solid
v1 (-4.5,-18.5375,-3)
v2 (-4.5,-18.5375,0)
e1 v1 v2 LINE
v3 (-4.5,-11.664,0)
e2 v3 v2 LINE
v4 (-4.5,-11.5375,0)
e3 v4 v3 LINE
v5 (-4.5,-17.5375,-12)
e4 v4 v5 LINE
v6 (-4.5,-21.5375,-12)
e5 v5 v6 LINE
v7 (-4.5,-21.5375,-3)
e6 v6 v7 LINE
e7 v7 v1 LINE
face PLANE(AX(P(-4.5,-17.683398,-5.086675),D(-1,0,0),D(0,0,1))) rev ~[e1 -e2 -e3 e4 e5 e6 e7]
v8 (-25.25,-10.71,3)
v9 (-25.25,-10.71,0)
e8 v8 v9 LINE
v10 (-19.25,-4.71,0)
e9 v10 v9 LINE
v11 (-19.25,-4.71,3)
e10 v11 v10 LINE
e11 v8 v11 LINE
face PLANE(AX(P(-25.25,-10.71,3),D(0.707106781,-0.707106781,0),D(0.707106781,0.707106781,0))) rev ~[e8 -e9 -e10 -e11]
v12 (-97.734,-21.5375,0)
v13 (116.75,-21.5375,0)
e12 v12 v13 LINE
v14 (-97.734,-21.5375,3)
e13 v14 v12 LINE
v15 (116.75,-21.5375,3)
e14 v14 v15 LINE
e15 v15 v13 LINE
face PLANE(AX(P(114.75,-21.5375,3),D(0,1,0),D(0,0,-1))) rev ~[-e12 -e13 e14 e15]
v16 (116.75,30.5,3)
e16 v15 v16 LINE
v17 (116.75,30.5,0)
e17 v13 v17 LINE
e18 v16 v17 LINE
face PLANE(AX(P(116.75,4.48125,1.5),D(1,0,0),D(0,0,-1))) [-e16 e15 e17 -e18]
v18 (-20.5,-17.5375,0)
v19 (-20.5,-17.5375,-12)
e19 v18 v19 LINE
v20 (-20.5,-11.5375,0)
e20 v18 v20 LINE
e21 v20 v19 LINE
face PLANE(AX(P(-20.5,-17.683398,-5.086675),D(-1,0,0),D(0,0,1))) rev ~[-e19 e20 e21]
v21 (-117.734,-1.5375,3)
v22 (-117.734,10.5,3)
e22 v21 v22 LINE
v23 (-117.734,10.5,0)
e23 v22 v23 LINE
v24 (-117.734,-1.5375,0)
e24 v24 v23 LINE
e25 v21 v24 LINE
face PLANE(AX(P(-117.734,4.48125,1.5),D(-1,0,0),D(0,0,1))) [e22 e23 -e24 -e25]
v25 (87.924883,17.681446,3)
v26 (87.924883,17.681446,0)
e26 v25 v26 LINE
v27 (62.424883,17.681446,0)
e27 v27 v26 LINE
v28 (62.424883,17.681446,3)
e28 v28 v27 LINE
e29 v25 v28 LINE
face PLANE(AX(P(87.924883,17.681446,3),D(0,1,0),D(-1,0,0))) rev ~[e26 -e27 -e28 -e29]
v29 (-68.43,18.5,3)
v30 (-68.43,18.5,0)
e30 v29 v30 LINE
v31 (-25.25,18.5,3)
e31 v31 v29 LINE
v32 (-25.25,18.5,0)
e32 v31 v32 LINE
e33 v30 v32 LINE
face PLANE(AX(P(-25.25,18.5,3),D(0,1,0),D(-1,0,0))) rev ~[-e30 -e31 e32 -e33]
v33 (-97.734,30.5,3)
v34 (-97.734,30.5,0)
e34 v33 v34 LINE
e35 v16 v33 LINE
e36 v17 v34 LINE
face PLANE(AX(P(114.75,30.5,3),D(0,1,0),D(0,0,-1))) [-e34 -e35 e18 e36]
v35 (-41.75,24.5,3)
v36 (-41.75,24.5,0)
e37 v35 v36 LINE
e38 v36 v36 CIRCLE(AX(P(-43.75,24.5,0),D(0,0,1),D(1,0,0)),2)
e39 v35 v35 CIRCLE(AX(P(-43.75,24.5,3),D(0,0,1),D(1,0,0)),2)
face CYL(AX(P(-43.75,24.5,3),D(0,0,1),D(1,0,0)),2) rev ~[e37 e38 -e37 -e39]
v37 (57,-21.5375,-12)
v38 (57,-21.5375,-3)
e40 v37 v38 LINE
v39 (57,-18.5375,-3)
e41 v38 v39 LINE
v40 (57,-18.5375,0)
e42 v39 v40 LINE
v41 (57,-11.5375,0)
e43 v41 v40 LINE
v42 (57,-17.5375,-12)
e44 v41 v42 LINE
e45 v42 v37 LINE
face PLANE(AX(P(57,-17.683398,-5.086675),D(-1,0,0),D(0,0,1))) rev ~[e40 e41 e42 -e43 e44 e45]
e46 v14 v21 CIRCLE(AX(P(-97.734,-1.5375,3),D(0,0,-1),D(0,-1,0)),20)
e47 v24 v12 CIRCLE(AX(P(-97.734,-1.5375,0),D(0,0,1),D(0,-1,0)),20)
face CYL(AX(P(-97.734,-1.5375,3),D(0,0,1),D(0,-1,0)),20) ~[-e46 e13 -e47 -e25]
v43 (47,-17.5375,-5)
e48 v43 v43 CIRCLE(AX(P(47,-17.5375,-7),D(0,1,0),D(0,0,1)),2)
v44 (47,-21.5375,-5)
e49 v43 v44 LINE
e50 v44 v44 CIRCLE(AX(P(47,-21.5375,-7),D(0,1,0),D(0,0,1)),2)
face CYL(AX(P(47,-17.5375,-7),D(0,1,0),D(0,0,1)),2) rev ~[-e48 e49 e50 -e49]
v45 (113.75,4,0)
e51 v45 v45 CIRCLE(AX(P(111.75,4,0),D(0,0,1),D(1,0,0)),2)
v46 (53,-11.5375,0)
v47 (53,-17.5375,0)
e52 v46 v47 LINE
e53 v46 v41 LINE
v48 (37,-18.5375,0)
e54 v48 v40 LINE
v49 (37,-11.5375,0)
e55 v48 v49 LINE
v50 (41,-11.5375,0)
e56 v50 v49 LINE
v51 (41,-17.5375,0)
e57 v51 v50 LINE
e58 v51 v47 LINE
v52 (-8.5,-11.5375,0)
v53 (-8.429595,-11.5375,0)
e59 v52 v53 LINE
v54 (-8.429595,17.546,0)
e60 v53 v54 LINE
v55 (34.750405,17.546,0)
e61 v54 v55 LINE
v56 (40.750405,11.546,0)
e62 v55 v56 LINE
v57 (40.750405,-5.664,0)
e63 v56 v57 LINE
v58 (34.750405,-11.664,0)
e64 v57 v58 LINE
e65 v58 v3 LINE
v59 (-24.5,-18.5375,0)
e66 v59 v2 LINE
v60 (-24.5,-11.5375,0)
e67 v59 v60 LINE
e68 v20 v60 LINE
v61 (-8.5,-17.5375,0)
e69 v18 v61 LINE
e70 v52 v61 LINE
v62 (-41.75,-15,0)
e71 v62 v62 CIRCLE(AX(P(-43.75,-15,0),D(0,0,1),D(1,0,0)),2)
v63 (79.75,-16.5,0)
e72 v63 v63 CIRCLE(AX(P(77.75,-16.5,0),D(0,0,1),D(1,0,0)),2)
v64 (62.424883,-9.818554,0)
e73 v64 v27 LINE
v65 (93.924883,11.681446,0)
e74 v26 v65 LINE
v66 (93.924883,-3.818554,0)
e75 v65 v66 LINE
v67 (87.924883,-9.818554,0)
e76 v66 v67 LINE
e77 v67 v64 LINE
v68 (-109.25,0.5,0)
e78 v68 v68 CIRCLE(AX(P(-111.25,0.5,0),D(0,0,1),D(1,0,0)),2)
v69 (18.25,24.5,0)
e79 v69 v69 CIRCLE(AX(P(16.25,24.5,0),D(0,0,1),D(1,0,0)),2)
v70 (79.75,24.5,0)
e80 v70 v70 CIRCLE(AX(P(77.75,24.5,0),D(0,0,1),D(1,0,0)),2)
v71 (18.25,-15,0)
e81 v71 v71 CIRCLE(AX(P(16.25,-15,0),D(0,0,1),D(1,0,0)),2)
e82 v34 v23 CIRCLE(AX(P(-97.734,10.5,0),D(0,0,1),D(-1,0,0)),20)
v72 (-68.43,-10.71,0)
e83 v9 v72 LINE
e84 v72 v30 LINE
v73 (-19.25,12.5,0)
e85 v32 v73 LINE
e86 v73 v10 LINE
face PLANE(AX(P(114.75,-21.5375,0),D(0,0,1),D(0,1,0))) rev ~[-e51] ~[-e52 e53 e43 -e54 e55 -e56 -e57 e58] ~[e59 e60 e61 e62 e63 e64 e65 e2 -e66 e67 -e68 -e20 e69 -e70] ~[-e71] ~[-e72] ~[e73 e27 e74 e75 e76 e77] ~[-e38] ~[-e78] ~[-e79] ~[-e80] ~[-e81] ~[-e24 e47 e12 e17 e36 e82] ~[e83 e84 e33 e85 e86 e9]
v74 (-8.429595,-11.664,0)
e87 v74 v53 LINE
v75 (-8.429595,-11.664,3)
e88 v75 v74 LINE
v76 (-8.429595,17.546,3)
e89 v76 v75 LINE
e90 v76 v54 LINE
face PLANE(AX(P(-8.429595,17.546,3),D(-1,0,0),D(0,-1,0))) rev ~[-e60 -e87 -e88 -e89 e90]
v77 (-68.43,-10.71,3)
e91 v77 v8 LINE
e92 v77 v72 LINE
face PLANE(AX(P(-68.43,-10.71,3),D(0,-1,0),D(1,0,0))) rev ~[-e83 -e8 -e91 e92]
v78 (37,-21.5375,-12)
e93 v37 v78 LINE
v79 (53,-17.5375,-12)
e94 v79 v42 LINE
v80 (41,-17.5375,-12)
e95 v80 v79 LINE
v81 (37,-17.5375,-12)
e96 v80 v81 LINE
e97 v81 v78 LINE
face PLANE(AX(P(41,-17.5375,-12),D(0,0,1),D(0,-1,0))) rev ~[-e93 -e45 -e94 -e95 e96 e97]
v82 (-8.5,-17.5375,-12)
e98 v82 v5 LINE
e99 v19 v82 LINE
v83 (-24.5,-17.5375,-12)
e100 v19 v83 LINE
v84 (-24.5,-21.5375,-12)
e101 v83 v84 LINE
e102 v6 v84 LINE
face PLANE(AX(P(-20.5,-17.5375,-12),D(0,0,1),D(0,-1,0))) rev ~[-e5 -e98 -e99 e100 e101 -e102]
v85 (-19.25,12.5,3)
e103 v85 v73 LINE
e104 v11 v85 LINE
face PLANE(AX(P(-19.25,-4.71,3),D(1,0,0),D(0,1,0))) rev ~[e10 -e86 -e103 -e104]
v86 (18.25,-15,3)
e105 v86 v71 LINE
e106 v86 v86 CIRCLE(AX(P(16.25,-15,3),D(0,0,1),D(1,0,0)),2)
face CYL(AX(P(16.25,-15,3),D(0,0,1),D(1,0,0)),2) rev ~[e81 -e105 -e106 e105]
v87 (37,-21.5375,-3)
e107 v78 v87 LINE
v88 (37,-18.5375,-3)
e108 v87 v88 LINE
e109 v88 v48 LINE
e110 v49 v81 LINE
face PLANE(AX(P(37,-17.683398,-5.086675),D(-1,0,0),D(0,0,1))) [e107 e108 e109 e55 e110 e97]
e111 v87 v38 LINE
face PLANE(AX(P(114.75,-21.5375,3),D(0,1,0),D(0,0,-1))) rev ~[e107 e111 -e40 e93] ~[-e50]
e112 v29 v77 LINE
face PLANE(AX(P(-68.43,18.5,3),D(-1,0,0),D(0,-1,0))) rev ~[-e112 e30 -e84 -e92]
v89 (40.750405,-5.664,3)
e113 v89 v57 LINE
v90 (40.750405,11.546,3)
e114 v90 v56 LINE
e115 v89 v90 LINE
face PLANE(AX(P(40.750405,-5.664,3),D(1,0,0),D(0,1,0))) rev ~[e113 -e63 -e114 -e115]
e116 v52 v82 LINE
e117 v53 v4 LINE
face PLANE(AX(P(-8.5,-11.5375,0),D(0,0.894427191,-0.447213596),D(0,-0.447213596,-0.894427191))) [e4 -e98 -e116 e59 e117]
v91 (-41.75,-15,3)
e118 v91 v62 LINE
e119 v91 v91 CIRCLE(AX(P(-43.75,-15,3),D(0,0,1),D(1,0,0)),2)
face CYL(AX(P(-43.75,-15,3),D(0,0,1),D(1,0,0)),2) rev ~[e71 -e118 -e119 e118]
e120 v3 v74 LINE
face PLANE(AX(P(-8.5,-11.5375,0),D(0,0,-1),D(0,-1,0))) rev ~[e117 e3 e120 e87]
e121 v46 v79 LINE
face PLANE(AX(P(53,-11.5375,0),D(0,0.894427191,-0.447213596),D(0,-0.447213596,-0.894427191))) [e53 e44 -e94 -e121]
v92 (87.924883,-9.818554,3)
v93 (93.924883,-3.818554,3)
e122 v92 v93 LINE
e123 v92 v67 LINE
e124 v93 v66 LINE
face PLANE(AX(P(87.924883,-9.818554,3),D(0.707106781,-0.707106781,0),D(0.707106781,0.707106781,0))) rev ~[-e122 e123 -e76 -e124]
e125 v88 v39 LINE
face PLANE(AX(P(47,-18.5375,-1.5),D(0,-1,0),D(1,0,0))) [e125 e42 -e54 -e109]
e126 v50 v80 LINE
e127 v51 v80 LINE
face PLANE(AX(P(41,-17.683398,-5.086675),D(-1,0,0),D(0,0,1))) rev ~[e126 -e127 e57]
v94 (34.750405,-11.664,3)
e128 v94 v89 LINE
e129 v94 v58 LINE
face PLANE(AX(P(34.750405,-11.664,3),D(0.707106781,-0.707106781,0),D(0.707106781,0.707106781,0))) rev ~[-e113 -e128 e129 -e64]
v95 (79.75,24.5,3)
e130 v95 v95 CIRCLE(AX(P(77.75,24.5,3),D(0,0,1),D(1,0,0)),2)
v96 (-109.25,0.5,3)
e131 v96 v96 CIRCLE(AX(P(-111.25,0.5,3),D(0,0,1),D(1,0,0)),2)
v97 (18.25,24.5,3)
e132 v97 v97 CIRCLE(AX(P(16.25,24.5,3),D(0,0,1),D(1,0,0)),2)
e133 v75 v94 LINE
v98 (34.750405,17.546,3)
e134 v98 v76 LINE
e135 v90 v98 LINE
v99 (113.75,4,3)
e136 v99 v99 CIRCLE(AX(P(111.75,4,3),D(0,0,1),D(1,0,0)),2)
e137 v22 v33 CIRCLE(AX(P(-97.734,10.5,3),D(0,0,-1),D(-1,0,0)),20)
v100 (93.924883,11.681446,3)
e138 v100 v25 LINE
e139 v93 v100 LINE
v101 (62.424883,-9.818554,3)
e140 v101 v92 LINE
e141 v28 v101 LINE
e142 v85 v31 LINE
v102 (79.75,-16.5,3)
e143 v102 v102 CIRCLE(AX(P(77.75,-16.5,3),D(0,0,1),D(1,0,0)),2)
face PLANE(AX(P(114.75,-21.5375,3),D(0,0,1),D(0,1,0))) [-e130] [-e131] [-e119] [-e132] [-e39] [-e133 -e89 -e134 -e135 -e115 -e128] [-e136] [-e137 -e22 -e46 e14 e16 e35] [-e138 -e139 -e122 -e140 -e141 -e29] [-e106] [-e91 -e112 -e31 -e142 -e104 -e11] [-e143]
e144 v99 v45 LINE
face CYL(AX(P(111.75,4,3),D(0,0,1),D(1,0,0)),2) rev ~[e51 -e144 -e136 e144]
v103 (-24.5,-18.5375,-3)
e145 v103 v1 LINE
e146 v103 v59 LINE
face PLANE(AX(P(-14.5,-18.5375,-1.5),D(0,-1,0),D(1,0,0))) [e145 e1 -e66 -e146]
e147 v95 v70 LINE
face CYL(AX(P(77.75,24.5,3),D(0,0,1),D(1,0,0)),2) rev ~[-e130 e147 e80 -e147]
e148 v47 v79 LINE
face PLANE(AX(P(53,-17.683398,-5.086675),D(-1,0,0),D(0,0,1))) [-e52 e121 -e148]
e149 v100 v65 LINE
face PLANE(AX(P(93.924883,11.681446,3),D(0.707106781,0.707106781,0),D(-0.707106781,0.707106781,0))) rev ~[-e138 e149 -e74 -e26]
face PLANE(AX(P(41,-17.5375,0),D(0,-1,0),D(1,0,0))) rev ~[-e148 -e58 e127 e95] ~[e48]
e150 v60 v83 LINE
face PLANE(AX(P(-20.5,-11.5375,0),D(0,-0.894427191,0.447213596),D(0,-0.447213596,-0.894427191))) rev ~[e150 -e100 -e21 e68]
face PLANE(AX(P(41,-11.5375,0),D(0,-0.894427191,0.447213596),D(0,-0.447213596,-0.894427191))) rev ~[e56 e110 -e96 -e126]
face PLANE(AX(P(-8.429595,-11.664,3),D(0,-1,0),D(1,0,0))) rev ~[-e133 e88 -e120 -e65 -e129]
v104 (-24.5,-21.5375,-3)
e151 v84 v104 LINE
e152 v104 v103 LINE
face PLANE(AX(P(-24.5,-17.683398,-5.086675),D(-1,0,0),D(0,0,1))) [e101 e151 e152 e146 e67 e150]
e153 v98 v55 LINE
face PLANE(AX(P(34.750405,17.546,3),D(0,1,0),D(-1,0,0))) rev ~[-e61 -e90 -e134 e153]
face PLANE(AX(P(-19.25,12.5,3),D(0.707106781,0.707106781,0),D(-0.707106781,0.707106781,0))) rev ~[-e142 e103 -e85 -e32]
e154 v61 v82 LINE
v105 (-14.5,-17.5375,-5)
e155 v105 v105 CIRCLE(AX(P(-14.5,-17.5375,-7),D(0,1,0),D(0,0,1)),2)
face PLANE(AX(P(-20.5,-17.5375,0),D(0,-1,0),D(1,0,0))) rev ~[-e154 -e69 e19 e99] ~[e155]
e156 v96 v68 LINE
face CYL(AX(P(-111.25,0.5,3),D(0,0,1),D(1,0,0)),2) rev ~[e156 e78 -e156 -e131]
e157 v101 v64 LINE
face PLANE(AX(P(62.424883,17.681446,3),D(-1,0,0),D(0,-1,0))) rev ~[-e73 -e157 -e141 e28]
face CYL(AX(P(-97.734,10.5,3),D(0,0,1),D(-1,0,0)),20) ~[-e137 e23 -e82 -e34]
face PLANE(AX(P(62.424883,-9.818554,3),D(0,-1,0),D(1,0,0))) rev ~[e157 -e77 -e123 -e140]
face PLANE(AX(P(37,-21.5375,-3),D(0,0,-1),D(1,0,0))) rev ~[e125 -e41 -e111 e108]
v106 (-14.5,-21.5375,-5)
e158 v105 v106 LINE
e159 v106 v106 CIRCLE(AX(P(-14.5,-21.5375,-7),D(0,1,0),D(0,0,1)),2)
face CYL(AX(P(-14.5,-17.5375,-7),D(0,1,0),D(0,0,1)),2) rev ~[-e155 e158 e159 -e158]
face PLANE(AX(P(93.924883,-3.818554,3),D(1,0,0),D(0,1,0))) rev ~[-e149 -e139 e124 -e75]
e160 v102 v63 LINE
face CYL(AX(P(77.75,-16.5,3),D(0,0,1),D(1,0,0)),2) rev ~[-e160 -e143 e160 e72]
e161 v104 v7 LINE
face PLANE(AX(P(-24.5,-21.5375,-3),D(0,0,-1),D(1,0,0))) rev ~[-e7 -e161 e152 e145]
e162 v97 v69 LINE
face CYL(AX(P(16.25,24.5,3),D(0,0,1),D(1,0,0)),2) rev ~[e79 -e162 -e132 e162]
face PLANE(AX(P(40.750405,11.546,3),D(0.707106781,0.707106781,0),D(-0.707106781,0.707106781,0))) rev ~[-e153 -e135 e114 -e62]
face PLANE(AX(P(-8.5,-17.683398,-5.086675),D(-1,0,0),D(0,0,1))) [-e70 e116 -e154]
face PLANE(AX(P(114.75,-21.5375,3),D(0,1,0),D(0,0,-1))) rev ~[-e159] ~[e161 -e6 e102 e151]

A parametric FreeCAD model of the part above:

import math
import FreeCAD as App
import Part
import Sketcher

V = App.Vector
Q = App.Units.Quantity


def add_polygon(sketch, points):
    """Adds a closed chain of lines whose ends are joined by coincident constraints."""
    first, n = sketch.GeometryCount, len(points)
    for a, b in zip(points, points[1:] + points[:1]):
        sketch.addGeometry(Part.LineSegment(App.Vector(*a, 0), App.Vector(*b, 0)), False)
    for i in range(n):
        sketch.addConstraint(Sketcher.Constraint("Coincident", first + i, 2, first + (i + 1) % n, 1))

doc = App.newDocument("Part")
body = doc.addObject("PartDesign::Body", "Body")

# Sketch on XY plane
sketch1 = doc.addObject("Sketcher::SketchObject", "Sketch")
body.addObject(sketch1)
sketch1.AttachmentSupport = (doc.XY_Plane, [""])
sketch1.MapMode = "FlatFace"
add_polygon(sketch1, [(-115, 24), (-115, -24), (115, -24), (115, 24)])  # lines 0-3
sketch1.addConstraint(Sketcher.Constraint("Vertical", 0))
sketch1.addConstraint(Sketcher.Constraint("Horizontal", 1))
sketch1.addConstraint(Sketcher.Constraint("Vertical", 2))
sketch1.addConstraint(Sketcher.Constraint("Horizontal", 3))
sketch1.addConstraint(Sketcher.Constraint("Symmetric", 0, 2, 2, 2, -1, 1))
sketch1.addConstraint(Sketcher.Constraint("DistanceY", 0, 2, 0, 1, Q("49 mm")))
sketch1.addConstraint(Sketcher.Constraint("DistanceX", 1, 1, 1, 2, Q("229.5 mm")))
pad1 = doc.addObject("PartDesign::Pad", "Pad")
body.addObject(pad1)
pad1.Profile = sketch1
pad1.Length = 3

# Sketch on XZ plane
sketch2 = doc.addObject("Sketcher::SketchObject", "Sketch001")
body.addObject(sketch2)
sketch2.AttachmentSupport = (doc.XZ_Plane, [""])
sketch2.MapMode = "FlatFace"
sketch2.AttachmentOffset = App.Placement(V(0, 0, -24.5), App.Rotation())
add_polygon(sketch2, [(-114.8, 0), (-114.8, 3), (114.8, 3), (114.8, 0)])  # lines 0-3
sketch2.addConstraint(Sketcher.Constraint("Vertical", 0))
sketch2.addConstraint(Sketcher.Constraint("Horizontal", 1))
sketch2.addConstraint(Sketcher.Constraint("Vertical", 2))
sketch2.addConstraint(Sketcher.Constraint("Horizontal", 3))
sketch2.addConstraint(Sketcher.Constraint("Symmetric", 2, 2, 3, 2, -1, 1))
sketch2.addConstraint(Sketcher.Constraint("DistanceY", 0, 1, 0, 2, Q("3 mm")))
sketch2.addConstraint(Sketcher.Constraint("DistanceX", 1, 1, 1, 2, Q("229.5 mm")))
pad2 = doc.addObject("PartDesign::Pad", "Pad001")
body.addObject(pad2)
pad2.Profile = sketch2
pad2.Length = 6
pad2.Reversed = True

# Sketch on XY plane
sketch3 = doc.addObject("Sketcher::SketchObject", "Sketch002")
body.addObject(sketch3)
sketch3.AttachmentSupport = (doc.XY_Plane, [""])
sketch3.MapMode = "FlatFace"
sketch3.AttachmentOffset = App.Placement(V(0, 0, 3), App.Rotation())
sketch3.addGeometry(Part.Circle(V(111.8, 4, 0), V(0, 0, 1), 2), False)
sketch3.addGeometry(Part.Circle(V(-111.2, 0.5, 0), V(0, 0, 1), 2), False)
sketch3.addGeometry(Part.Circle(V(-43.8, 24.5, 0), V(0, 0, 1), 2), False)
sketch3.addGeometry(Part.Circle(V(16.2, 24.5, 0), V(0, 0, 1), 2), False)
sketch3.addGeometry(Part.Circle(V(77.8, 24.5, 0), V(0, 0, 1), 2), False)
sketch3.addConstraint(Sketcher.Constraint("Equal", 0, 1))
sketch3.addConstraint(Sketcher.Constraint("Equal", 1, 2))
sketch3.addConstraint(Sketcher.Constraint("Equal", 2, 3))
sketch3.addConstraint(Sketcher.Constraint("Equal", 3, 4))
sketch3.addConstraint(Sketcher.Constraint("Horizontal", 2, 3, 3, 3))
sketch3.addConstraint(Sketcher.Constraint("Horizontal", 3, 3, 4, 3))
sketch3.addConstraint(Sketcher.Constraint("Diameter", 0, Q("4 mm")))
sketch3.addConstraint(Sketcher.Constraint("DistanceY", -1, 1, 0, 3, Q("4 mm")))
sketch3.addConstraint(Sketcher.Constraint("DistanceX", 1, 3, 0, 3, Q("223 mm")))
sketch3.addConstraint(Sketcher.Constraint("DistanceY", 1, 3, 2, 3, Q("24 mm")))
sketch3.addConstraint(Sketcher.Constraint("DistanceX", 2, 3, 3, 3, Q("60 mm")))
sketch3.addConstraint(Sketcher.Constraint("DistanceX", 4, 3, 0, 3, Q("34 mm")))
sketch3.addConstraint(Sketcher.Constraint("DistanceY", -1, 1, 1, 3, Q("0.5 mm")))
sketch3.addConstraint(Sketcher.Constraint("DistanceX", 1, 3, 2, 3, Q("67.5 mm")))
sketch3.addConstraint(Sketcher.Constraint("DistanceX", -1, 1, 0, 3, Q("111.75 mm")))
pocket1 = doc.addObject("PartDesign::Pocket", "Pocket")
body.addObject(pocket1)
pocket1.Profile = sketch3
pocket1.Length = 31.956

# Sketch on XY plane
sketch4 = doc.addObject("Sketcher::SketchObject", "Sketch003")
body.addObject(sketch4)
sketch4.AttachmentSupport = (doc.XY_Plane, [""])
sketch4.MapMode = "FlatFace"
sketch4.AttachmentOffset = App.Placement(V(0, 0, 3), App.Rotation())
add_polygon(sketch4, [(87.9, 17.7), (62.4, 17.7), (62.4, -9.8), (87.9, -9.8), (93.9, -3.8), (93.9, 11.7)])  # lines 0-5
add_polygon(sketch4, [(-19.2, -4.7), (-19.2, 12.5), (-25.2, 18.5), (-68.4, 18.5), (-68.4, -10.7), (-25.2, -10.7)])  # lines 6-11
add_polygon(sketch4, [(-8.4, -11.7), (34.8, -11.7), (40.8, -5.7), (40.8, 11.5), (34.8, 17.5), (-8.4, 17.5)])  # lines 12-17
sketch4.addGeometry(Part.Circle(V(-43.8, -15, 0), V(0, 0, 1), 2), False)  # 18
sketch4.addGeometry(Part.Circle(V(16.2, -15, 0), V(0, 0, 1), 2), False)  # 19
sketch4.addGeometry(Part.Circle(V(77.8, -16.5, 0), V(0, 0, 1), 2), False)  # 20
sketch4.addConstraint(Sketcher.Constraint("Horizontal", 0))
sketch4.addConstraint(Sketcher.Constraint("Vertical", 1))
sketch4.addConstraint(Sketcher.Constraint("Horizontal", 2))
sketch4.addConstraint(Sketcher.Constraint("Vertical", 4))
sketch4.addConstraint(Sketcher.Constraint("Vertical", 6))
sketch4.addConstraint(Sketcher.Constraint("Horizontal", 8))
sketch4.addConstraint(Sketcher.Constraint("Vertical", 9))
sketch4.addConstraint(Sketcher.Constraint("Horizontal", 10))
sketch4.addConstraint(Sketcher.Constraint("Horizontal", 12))
sketch4.addConstraint(Sketcher.Constraint("Vertical", 14))
sketch4.addConstraint(Sketcher.Constraint("Horizontal", 16))
sketch4.addConstraint(Sketcher.Constraint("Vertical", 17))
sketch4.addConstraint(Sketcher.Constraint("Equal", 18, 19))
sketch4.addConstraint(Sketcher.Constraint("Equal", 19, 20))
sketch4.addConstraint(Sketcher.Constraint("Perpendicular", 3, 5))
sketch4.addConstraint(Sketcher.Constraint("Parallel", 5, 7))
sketch4.addConstraint(Sketcher.Constraint("Perpendicular", 7, 11))
sketch4.addConstraint(Sketcher.Constraint("Parallel", 11, 13))
sketch4.addConstraint(Sketcher.Constraint("Perpendicular", 13, 15))
sketch4.addConstraint(Sketcher.Constraint("Horizontal", 18, 3, 19, 3))
sketch4.addConstraint(Sketcher.Constraint("Vertical", 2, 2, 5, 2))
sketch4.addConstraint(Sketcher.Constraint("Vertical", 7, 2, 10, 2))
sketch4.addConstraint(Sketcher.Constraint("Vertical", 12, 2, 15, 2))
sketch4.addConstraint(Sketcher.Constraint("Equal", 10, 12))
sketch4.addConstraint(Sketcher.Constraint("Equal", 6, 14))
sketch4.addConstraint(Sketcher.Constraint("Equal", 9, 17))
sketch4.addConstraint(Sketcher.Constraint("Equal", 3, 5))
sketch4.addConstraint(Sketcher.Constraint("Equal", 5, 7))
sketch4.addConstraint(Sketcher.Constraint("Diameter", 18, Q("4 mm")))
sketch4.addConstraint(Sketcher.Constraint("DistanceX", 0, 2, 0, 1, Q("25.5 mm")))
sketch4.addConstraint(Sketcher.Constraint("DistanceY", 1, 2, 1, 1, Q("27.5 mm")))
sketch4.addConstraint(Sketcher.Constraint("DistanceY", 4, 1, 4, 2, Q("15.5 mm")))
sketch4.addConstraint(Sketcher.Constraint("DistanceY", 18, 3, -1, 1, Q("15 mm")))
sketch4.addConstraint(Sketcher.Constraint("DistanceX", 18, 3, 19, 3, Q("60 mm")))
sketch4.addConstraint(Sketcher.Constraint("DistanceX", 6, 2, 20, 3, Q("97 mm")))
sketch4.addConstraint(Sketcher.Constraint("DistanceY", 20, 3, 6, 2, Q("29 mm")))
sketch4.addConstraint(Sketcher.Constraint("DistanceX", 8, 2, 8, 1, Q("43.18 mm")))
sketch4.addConstraint(Sketcher.Constraint("DistanceY", 6, 1, 6, 2, Q("17.21 mm")))
sketch4.addConstraint(Sketcher.Constraint("DistanceY", 20, 3, -1, 1, Q("16.5 mm")))
sketch4.addConstraint(Sketcher.Constraint("DistanceX", 19, 3, 20, 3, Q("61.5 mm")))
sketch4.addConstraint(Sketcher.Constraint("DistanceX", 18, 3, -1, 1, Q("43.75 mm")))
sketch4.addConstraint(Sketcher.Constraint("DistanceY", 12, 2, -1, 1, Q("11.664 mm")))
sketch4.addConstraint(Sketcher.Constraint("DistanceX", 12, 2, 1, 2, Q("27.674479 mm")))
sketch4.addConstraint(Sketcher.Constraint("DistanceX", -1, 1, 0, 2, Q("62.424883 mm")))
sketch4.addConstraint(Sketcher.Constraint("DistanceY", -1, 1, 0, 2, Q("17.681446 mm")))
pocket2 = doc.addObject("PartDesign::Pocket", "Pocket001")
body.addObject(pocket2)
pocket2.Profile = sketch4
pocket2.Length = 31.956

# Sketch on XY plane
sketch5 = doc.addObject("Sketcher::SketchObject", "Sketch004")
body.addObject(sketch5)
sketch5.AttachmentSupport = (doc.XY_Plane, [""])
sketch5.MapMode = "FlatFace"
sketch5.AttachmentOffset = App.Placement(V(0, 0, 3), App.Rotation())
sketch5.addGeometry(Part.ArcOfCircle(Part.Circle(V(-111, 0, 0), V(0, 0, 1), 6), math.radians(126), math.radians(234)), False)
sketch5.addGeometry(Part.LineSegment(V(-115, -4, 0), V(-115, 5, 0)), False)
sketch5.addConstraint(Sketcher.Constraint("Coincident", 0, 1, 1, 2))
sketch5.addConstraint(Sketcher.Constraint("Coincident", 1, 1, 0, 2))
sketch5.addConstraint(Sketcher.Constraint("Vertical", 1))
sketch5.addConstraint(Sketcher.Constraint("Radius", 0, Q("6 mm")))
sketch5.addConstraint(Sketcher.Constraint("DistanceY", -1, 1, 0, 3, Q("0.5 mm")))
sketch5.addConstraint(Sketcher.Constraint("DistanceX", 0, 1, 0, 3, Q("3.5 mm")))
sketch5.addConstraint(Sketcher.Constraint("DistanceX", 0, 3, -1, 1, Q("111.25 mm")))
pad3 = doc.addObject("PartDesign::Pad", "Pad002")
body.addObject(pad3)
pad3.Profile = sketch5
pad3.Length = 3
pad3.Reversed = True

# Sketch on XY plane
sketch6 = doc.addObject("Sketcher::SketchObject", "Sketch005")
body.addObject(sketch6)
sketch6.AttachmentSupport = (doc.XY_Plane, [""])
sketch6.MapMode = "FlatFace"
add_polygon(sketch6, [(114.8, -21.5), (114.8, -24.5), (-114.8, -24.5), (-114.8, -21.5)])  # lines 0-3
sketch6.addConstraint(Sketcher.Constraint("Vertical", 0))
sketch6.addConstraint(Sketcher.Constraint("Horizontal", 1))
sketch6.addConstraint(Sketcher.Constraint("Vertical", 2))
sketch6.addConstraint(Sketcher.Constraint("Horizontal", 3))
sketch6.addConstraint(Sketcher.Constraint("DistanceX", 1, 2, 1, 1, Q("229.5 mm")))
sketch6.addConstraint(Sketcher.Constraint("DistanceY", 0, 2, -1, 1, Q("24.5 mm")))
sketch6.addConstraint(Sketcher.Constraint("DistanceX", -1, 1, 0, 2, Q("114.75 mm")))
sketch6.addConstraint(Sketcher.Constraint("DistanceY", 0, 2, 0, 1, Q("2.9625 mm")))
pocket3 = doc.addObject("PartDesign::Pocket", "Pocket002")
body.addObject(pocket3)
pocket3.Profile = sketch6
pocket3.Length = 11.382
pocket3.Reversed = True

# Sketch on XY plane
sketch7 = doc.addObject("Sketcher::SketchObject", "Sketch006")
body.addObject(sketch7)
sketch7.AttachmentSupport = (doc.XY_Plane, [""])
sketch7.MapMode = "FlatFace"
add_polygon(sketch7, [(41, -21.5), (41, -17.5), (53, -17.5), (53, -21.5)])  # lines 0-3
add_polygon(sketch7, [(-8.5, -21.5), (-20.5, -21.5), (-20.5, -17.5), (-8.5, -17.5)])  # lines 4-7
sketch7.addConstraint(Sketcher.Constraint("Vertical", 0))
sketch7.addConstraint(Sketcher.Constraint("Horizontal", 1))
sketch7.addConstraint(Sketcher.Constraint("Vertical", 2))
sketch7.addConstraint(Sketcher.Constraint("Horizontal", 3))
sketch7.addConstraint(Sketcher.Constraint("Horizontal", 4))
sketch7.addConstraint(Sketcher.Constraint("Vertical", 5))
sketch7.addConstraint(Sketcher.Constraint("Horizontal", 6))
sketch7.addConstraint(Sketcher.Constraint("Vertical", 7))
sketch7.addConstraint(Sketcher.Constraint("Horizontal", 3, 2, 4, 2))
sketch7.addConstraint(Sketcher.Constraint("Horizontal", 1, 2, 5, 2))
sketch7.addConstraint(Sketcher.Constraint("Equal", 3, 4))
sketch7.addConstraint(Sketcher.Constraint("DistanceX", 1, 1, 1, 2, Q("12 mm")))
sketch7.addConstraint(Sketcher.Constraint("DistanceY", 0, 1, 0, 2, Q("4 mm")))
sketch7.addConstraint(Sketcher.Constraint("DistanceX", -1, 1, 0, 2, Q("41 mm")))
sketch7.addConstraint(Sketcher.Constraint("DistanceX", 4, 2, -1, 1, Q("20.5 mm")))
sketch7.addConstraint(Sketcher.Constraint("DistanceY", 0, 2, -1, 1, Q("17.5375 mm")))
pad4 = doc.addObject("PartDesign::Pad", "Pad003")
body.addObject(pad4)
pad4.Profile = sketch7
pad4.Length = 12
pad4.Reversed = True

# Sketch on XZ plane
sketch8 = doc.addObject("Sketcher::SketchObject", "Sketch007")
body.addObject(sketch8)
sketch8.AttachmentSupport = (doc.XZ_Plane, [""])
sketch8.MapMode = "FlatFace"
sketch8.AttachmentOffset = App.Placement(V(0, 0, 17.5375), App.Rotation())
sketch8.addGeometry(Part.Circle(V(-14.5, -7, 0), V(0, 0, 1), 2), False)
sketch8.addGeometry(Part.Circle(V(47, -7, 0), V(0, 0, 1), 2), False)
sketch8.addConstraint(Sketcher.Constraint("Equal", 0, 1))
sketch8.addConstraint(Sketcher.Constraint("Horizontal", 0, 3, 1, 3))
sketch8.addConstraint(Sketcher.Constraint("Diameter", 0, Q("4 mm")))
sketch8.addConstraint(Sketcher.Constraint("DistanceY", 0, 3, -1, 1, Q("7 mm")))
sketch8.addConstraint(Sketcher.Constraint("DistanceX", -1, 1, 1, 3, Q("47 mm")))
sketch8.addConstraint(Sketcher.Constraint("DistanceX", 0, 3, -1, 1, Q("14.5 mm")))
pocket4 = doc.addObject("PartDesign::Pocket", "Pocket003")
body.addObject(pocket4)
pocket4.Profile = sketch8
pocket4.Length = 15
pocket4.Reversed = True

# Sketch on YZ plane
sketch9 = doc.addObject("Sketcher::SketchObject", "Sketch008")
body.addObject(sketch9)
sketch9.AttachmentSupport = (doc.YZ_Plane, [""])
sketch9.MapMode = "FlatFace"
sketch9.AttachmentOffset = App.Placement(V(0, 0, 53), App.Rotation())
add_polygon(sketch9, [(-11.5, 0), (-21.5, 0), (-21.5, -12), (-17.5, -12)])  # lines 0-3
sketch9.addConstraint(Sketcher.Constraint("Horizontal", 0))
sketch9.addConstraint(Sketcher.Constraint("Vertical", 1))
sketch9.addConstraint(Sketcher.Constraint("Horizontal", 2))
sketch9.addConstraint(Sketcher.Constraint("PointOnObject", 0, 2, -1))
sketch9.addConstraint(Sketcher.Constraint("DistanceX", 0, 2, 0, 1, Q("10 mm")))
sketch9.addConstraint(Sketcher.Constraint("DistanceX", 2, 1, 2, 2, Q("4 mm")))
sketch9.addConstraint(Sketcher.Constraint("DistanceY", 1, 2, 1, 1, Q("12 mm")))
sketch9.addConstraint(Sketcher.Constraint("DistanceX", 0, 2, -1, 1, Q("21.5375 mm")))
pad5 = doc.addObject("PartDesign::Pad", "Pad004")
body.addObject(pad5)
pad5.Profile = sketch9
pad5.Length = 4

# Sketch on YZ plane
sketch10 = doc.addObject("Sketcher::SketchObject", "Sketch009")
body.addObject(sketch10)
sketch10.AttachmentSupport = (doc.YZ_Plane, [""])
sketch10.MapMode = "FlatFace"
sketch10.AttachmentOffset = App.Placement(V(0, 0, 41), App.Rotation())
add_polygon(sketch10, [(-11.5, 0), (-17.5, -12), (-21.5, -12), (-21.5, 0)])  # lines 0-3
sketch10.addConstraint(Sketcher.Constraint("Horizontal", 1))
sketch10.addConstraint(Sketcher.Constraint("Vertical", 2))
sketch10.addConstraint(Sketcher.Constraint("Horizontal", 3))
sketch10.addConstraint(Sketcher.Constraint("PointOnObject", 2, 2, -1))
sketch10.addConstraint(Sketcher.Constraint("DistanceX", 1, 2, 1, 1, Q("4 mm")))
sketch10.addConstraint(Sketcher.Constraint("DistanceX", 3, 1, 3, 2, Q("10 mm")))
sketch10.addConstraint(Sketcher.Constraint("DistanceY", 2, 1, 2, 2, Q("12 mm")))
sketch10.addConstraint(Sketcher.Constraint("DistanceX", 0, 2, -1, 1, Q("17.5375 mm")))
pad6 = doc.addObject("PartDesign::Pad", "Pad005")
body.addObject(pad6)
pad6.Profile = sketch10
pad6.Length = 4
pad6.Reversed = True

# Sketch on YZ plane
sketch11 = doc.addObject("Sketcher::SketchObject", "Sketch010")
body.addObject(sketch11)
sketch11.AttachmentSupport = (doc.YZ_Plane, [""])
sketch11.MapMode = "FlatFace"
sketch11.AttachmentOffset = App.Placement(V(0, 0, -8.5), App.Rotation())
add_polygon(sketch11, [(-11.5, 0), (-21.5, 0), (-21.5, -12), (-17.5, -12)])  # lines 0-3
sketch11.addConstraint(Sketcher.Constraint("Horizontal", 0))
sketch11.addConstraint(Sketcher.Constraint("Vertical", 1))
sketch11.addConstraint(Sketcher.Constraint("Horizontal", 2))
sketch11.addConstraint(Sketcher.Constraint("PointOnObject", 0, 2, -1))
sketch11.addConstraint(Sketcher.Constraint("DistanceX", 0, 2, 0, 1, Q("10 mm")))
sketch11.addConstraint(Sketcher.Constraint("DistanceX", 2, 1, 2, 2, Q("4 mm")))
sketch11.addConstraint(Sketcher.Constraint("DistanceY", 1, 2, 1, 1, Q("12 mm")))
sketch11.addConstraint(Sketcher.Constraint("DistanceX", 0, 2, -1, 1, Q("21.5375 mm")))
pad7 = doc.addObject("PartDesign::Pad", "Pad006")
body.addObject(pad7)
pad7.Profile = sketch11
pad7.Length = 4

# Sketch on YZ plane
sketch12 = doc.addObject("Sketcher::SketchObject", "Sketch011")
body.addObject(sketch12)
sketch12.AttachmentSupport = (doc.YZ_Plane, [""])
sketch12.MapMode = "FlatFace"
sketch12.AttachmentOffset = App.Placement(V(0, 0, -20.5), App.Rotation())
add_polygon(sketch12, [(-11.5, 0), (-17.5, -12), (-21.5, -12), (-21.5, 0)])  # lines 0-3
sketch12.addConstraint(Sketcher.Constraint("Horizontal", 1))
sketch12.addConstraint(Sketcher.Constraint("Vertical", 2))
sketch12.addConstraint(Sketcher.Constraint("Horizontal", 3))
sketch12.addConstraint(Sketcher.Constraint("PointOnObject", 2, 2, -1))
sketch12.addConstraint(Sketcher.Constraint("DistanceX", 1, 2, 1, 1, Q("4 mm")))
sketch12.addConstraint(Sketcher.Constraint("DistanceX", 3, 1, 3, 2, Q("10 mm")))
sketch12.addConstraint(Sketcher.Constraint("DistanceY", 2, 1, 2, 2, Q("12 mm")))
sketch12.addConstraint(Sketcher.Constraint("DistanceX", 0, 2, -1, 1, Q("17.5375 mm")))
pad8 = doc.addObject("PartDesign::Pad", "Pad007")
body.addObject(pad8)
pad8.Profile = sketch12
pad8.Length = 4
pad8.Reversed = True

# Sketch on YZ plane
sketch13 = doc.addObject("Sketcher::SketchObject", "Sketch012")
body.addObject(sketch13)
sketch13.AttachmentSupport = (doc.YZ_Plane, [""])
sketch13.MapMode = "FlatFace"
sketch13.AttachmentOffset = App.Placement(V(0, 0, -114.75), App.Rotation())
add_polygon(sketch13, [(30.5, 0), (-21.5, 0), (-21.5, 3), (30.5, 3)])  # lines 0-3
sketch13.addConstraint(Sketcher.Constraint("Horizontal", 0))
sketch13.addConstraint(Sketcher.Constraint("Vertical", 1))
sketch13.addConstraint(Sketcher.Constraint("Horizontal", 2))
sketch13.addConstraint(Sketcher.Constraint("Vertical", 3))
sketch13.addConstraint(Sketcher.Constraint("PointOnObject", 0, 2, -1))
sketch13.addConstraint(Sketcher.Constraint("DistanceY", 1, 1, 1, 2, Q("3 mm")))
sketch13.addConstraint(Sketcher.Constraint("DistanceX", -1, 1, 2, 2, Q("30.5 mm")))
sketch13.addConstraint(Sketcher.Constraint("DistanceX", 0, 2, 0, 1, Q("52.0375 mm")))
pad9 = doc.addObject("PartDesign::Pad", "Pad008")
body.addObject(pad9)
pad9.Profile = sketch13
pad9.Length = 2.984
pad9.Reversed = True

# Sketch on XY plane
sketch14 = doc.addObject("Sketcher::SketchObject", "Sketch013")
body.addObject(sketch14)
sketch14.AttachmentSupport = (doc.XY_Plane, [""])
sketch14.MapMode = "FlatFace"
sketch14.AttachmentOffset = App.Placement(V(0, 0, 3), App.Rotation())
sketch14.addGeometry(Part.ArcOfCircle(Part.Circle(V(-98, 11, 0), V(0, 0, 1), 20), math.radians(90), math.radians(180)), False)
sketch14.addGeometry(Part.LineSegment(V(-98, 30, 0), V(-118, 30, 0)), False)
sketch14.addGeometry(Part.LineSegment(V(-118, 30, 0), V(-118, 10, 0)), False)
sketch14.addGeometry(Part.ArcOfCircle(Part.Circle(V(-98, -2, 0), V(0, 0, 1), 20), math.radians(180), math.radians(270)), False)
sketch14.addGeometry(Part.LineSegment(V(-118, -2, 0), V(-118, -22, 0)), False)
sketch14.addGeometry(Part.LineSegment(V(-118, -22, 0), V(-98, -22, 0)), False)
sketch14.addConstraint(Sketcher.Constraint("Tangent", 0, 1, 1, 1))
sketch14.addConstraint(Sketcher.Constraint("Coincident", 1, 2, 2, 1))
sketch14.addConstraint(Sketcher.Constraint("Tangent", 2, 2, 0, 2))
sketch14.addConstraint(Sketcher.Constraint("Tangent", 3, 1, 4, 1))
sketch14.addConstraint(Sketcher.Constraint("Coincident", 4, 2, 5, 1))
sketch14.addConstraint(Sketcher.Constraint("Tangent", 5, 2, 3, 2))
sketch14.addConstraint(Sketcher.Constraint("Horizontal", 1))
sketch14.addConstraint(Sketcher.Constraint("Vertical", 2))
sketch14.addConstraint(Sketcher.Constraint("Vertical", 4))
sketch14.addConstraint(Sketcher.Constraint("Horizontal", 5))
sketch14.addConstraint(Sketcher.Constraint("Equal", 0, 3))
sketch14.addConstraint(Sketcher.Constraint("Vertical", 0, 3, 3, 3))
sketch14.addConstraint(Sketcher.Constraint("Radius", 0, Q("20 mm")))
sketch14.addConstraint(Sketcher.Constraint("DistanceY", -1, 1, 0, 3, Q("10.5 mm")))
sketch14.addConstraint(Sketcher.Constraint("DistanceX", 0, 3, -1, 1, Q("97.734 mm")))
sketch14.addConstraint(Sketcher.Constraint("DistanceY", 3, 3, -1, 1, Q("1.5375 mm")))
pocket5 = doc.addObject("PartDesign::Pocket", "Pocket004")
body.addObject(pocket5)
pocket5.Profile = sketch14
pocket5.Length = 20.764

# Sketch on YZ plane
sketch15 = doc.addObject("Sketcher::SketchObject", "Sketch014")
body.addObject(sketch15)
sketch15.AttachmentSupport = (doc.YZ_Plane, [""])
sketch15.MapMode = "FlatFace"
sketch15.AttachmentOffset = App.Placement(V(0, 0, 114.75), App.Rotation())
add_polygon(sketch15, [(30.5, 3), (-21.5, 3), (-21.5, 0), (30.5, 0)])  # lines 0-3
sketch15.addConstraint(Sketcher.Constraint("Horizontal", 0))
sketch15.addConstraint(Sketcher.Constraint("Vertical", 1))
sketch15.addConstraint(Sketcher.Constraint("Horizontal", 2))
sketch15.addConstraint(Sketcher.Constraint("Vertical", 3))
sketch15.addConstraint(Sketcher.Constraint("PointOnObject", 1, 2, -1))
sketch15.addConstraint(Sketcher.Constraint("DistanceY", 1, 2, 1, 1, Q("3 mm")))
sketch15.addConstraint(Sketcher.Constraint("DistanceX", -1, 1, 2, 2, Q("30.5 mm")))
sketch15.addConstraint(Sketcher.Constraint("DistanceX", 0, 2, 0, 1, Q("52.0375 mm")))
pad10 = doc.addObject("PartDesign::Pad", "Pad009")
body.addObject(pad10)
pad10.Profile = sketch15
pad10.Length = 2

# Sketch on XZ plane
sketch16 = doc.addObject("Sketcher::SketchObject", "Sketch015")
body.addObject(sketch16)
sketch16.AttachmentSupport = (doc.XZ_Plane, [""])
sketch16.MapMode = "FlatFace"
sketch16.AttachmentOffset = App.Placement(V(0, 0, 21.5375), App.Rotation())
add_polygon(sketch16, [(-24.5, 0), (-24.5, -3), (-4.5, -3), (-4.5, 0)])  # lines 0-3
add_polygon(sketch16, [(37, 0), (37, -3), (57, -3), (57, 0)])  # lines 4-7
sketch16.addConstraint(Sketcher.Constraint("Vertical", 0))
sketch16.addConstraint(Sketcher.Constraint("Horizontal", 1))
sketch16.addConstraint(Sketcher.Constraint("Vertical", 2))
sketch16.addConstraint(Sketcher.Constraint("Horizontal", 3))
sketch16.addConstraint(Sketcher.Constraint("Vertical", 4))
sketch16.addConstraint(Sketcher.Constraint("Horizontal", 5))
sketch16.addConstraint(Sketcher.Constraint("Vertical", 6))
sketch16.addConstraint(Sketcher.Constraint("Horizontal", 7))
sketch16.addConstraint(Sketcher.Constraint("PointOnObject", 2, 2, -1))
sketch16.addConstraint(Sketcher.Constraint("PointOnObject", 6, 2, -1))
sketch16.addConstraint(Sketcher.Constraint("Horizontal", 1, 2, 4, 2))
sketch16.addConstraint(Sketcher.Constraint("Equal", 3, 5))
sketch16.addConstraint(Sketcher.Constraint("DistanceX", 1, 1, 1, 2, Q("20 mm")))
sketch16.addConstraint(Sketcher.Constraint("DistanceY", 0, 2, 0, 1, Q("3 mm")))
sketch16.addConstraint(Sketcher.Constraint("DistanceX", -1, 1, 4, 2, Q("37 mm")))
sketch16.addConstraint(Sketcher.Constraint("DistanceX", 0, 2, -1, 1, Q("24.5 mm")))
pocket6 = doc.addObject("PartDesign::Pocket", "Pocket005")
body.addObject(pocket6)
pocket6.Profile = sketch16
pocket6.Length = 3

doc.recompute()
